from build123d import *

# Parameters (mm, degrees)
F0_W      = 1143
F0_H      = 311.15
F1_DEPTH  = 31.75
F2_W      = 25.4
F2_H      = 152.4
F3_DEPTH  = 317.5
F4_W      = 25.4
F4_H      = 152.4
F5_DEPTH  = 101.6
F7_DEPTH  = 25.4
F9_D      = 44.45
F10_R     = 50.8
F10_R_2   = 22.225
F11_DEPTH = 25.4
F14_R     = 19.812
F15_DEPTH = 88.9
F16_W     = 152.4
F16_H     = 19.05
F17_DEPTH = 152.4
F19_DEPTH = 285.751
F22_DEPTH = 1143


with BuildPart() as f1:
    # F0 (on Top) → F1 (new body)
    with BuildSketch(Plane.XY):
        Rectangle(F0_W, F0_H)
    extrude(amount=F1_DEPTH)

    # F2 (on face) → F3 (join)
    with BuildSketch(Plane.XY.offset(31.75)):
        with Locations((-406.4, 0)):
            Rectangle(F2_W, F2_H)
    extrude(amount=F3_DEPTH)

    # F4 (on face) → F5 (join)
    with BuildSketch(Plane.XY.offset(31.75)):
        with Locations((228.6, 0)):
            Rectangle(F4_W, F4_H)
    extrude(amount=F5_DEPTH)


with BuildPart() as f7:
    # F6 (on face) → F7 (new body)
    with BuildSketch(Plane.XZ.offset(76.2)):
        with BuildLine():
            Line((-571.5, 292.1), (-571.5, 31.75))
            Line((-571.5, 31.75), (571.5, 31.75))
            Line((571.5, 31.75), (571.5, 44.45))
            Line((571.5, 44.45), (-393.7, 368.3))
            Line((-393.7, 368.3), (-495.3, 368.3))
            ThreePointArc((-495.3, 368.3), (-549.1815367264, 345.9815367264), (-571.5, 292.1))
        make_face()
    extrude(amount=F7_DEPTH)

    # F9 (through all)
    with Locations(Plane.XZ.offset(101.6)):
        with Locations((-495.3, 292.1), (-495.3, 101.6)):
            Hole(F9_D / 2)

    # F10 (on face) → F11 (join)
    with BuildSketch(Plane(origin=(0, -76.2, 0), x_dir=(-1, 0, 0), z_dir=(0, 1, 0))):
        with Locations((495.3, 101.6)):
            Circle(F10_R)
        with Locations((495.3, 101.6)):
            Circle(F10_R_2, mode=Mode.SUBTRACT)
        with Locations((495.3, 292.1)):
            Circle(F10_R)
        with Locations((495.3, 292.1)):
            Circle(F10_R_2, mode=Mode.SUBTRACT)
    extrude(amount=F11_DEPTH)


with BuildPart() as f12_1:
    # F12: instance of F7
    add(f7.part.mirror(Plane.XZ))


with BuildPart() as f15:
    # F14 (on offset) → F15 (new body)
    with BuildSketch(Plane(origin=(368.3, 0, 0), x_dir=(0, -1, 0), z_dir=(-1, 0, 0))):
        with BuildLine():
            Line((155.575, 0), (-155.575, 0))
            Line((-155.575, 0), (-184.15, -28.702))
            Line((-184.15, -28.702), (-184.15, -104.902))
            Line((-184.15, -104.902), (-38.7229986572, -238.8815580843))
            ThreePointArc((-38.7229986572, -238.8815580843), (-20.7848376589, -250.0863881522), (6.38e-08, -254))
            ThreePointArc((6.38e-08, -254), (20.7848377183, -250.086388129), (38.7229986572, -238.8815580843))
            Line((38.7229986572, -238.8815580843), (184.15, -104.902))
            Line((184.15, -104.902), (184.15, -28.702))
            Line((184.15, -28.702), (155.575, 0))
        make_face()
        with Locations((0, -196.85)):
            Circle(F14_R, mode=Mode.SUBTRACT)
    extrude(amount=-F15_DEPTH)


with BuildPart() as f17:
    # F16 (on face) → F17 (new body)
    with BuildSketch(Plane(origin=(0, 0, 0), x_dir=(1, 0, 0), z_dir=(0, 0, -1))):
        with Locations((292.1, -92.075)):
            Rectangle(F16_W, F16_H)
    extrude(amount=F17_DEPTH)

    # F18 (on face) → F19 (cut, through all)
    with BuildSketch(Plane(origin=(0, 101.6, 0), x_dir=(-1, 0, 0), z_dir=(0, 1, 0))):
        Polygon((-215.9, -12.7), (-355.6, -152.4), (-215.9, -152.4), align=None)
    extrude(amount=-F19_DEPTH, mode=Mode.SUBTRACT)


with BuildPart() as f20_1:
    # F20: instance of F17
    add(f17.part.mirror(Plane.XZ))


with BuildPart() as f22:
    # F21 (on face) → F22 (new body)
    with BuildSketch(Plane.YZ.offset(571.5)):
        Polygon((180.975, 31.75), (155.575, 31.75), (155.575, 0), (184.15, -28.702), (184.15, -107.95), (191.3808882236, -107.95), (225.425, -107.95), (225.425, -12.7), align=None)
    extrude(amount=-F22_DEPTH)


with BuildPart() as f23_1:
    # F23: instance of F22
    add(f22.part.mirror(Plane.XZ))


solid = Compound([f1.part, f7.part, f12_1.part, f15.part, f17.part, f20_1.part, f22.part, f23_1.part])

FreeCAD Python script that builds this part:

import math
import FreeCAD as App
import Part
import Sketcher
from FreeCAD import Vector
Q = App.Units.Quantity


def add_polygon(sketch, points):
    """Adds a closed chain of lines whose ends are joined by coincident constraints."""
    first, n = sketch.GeometryCount, len(points)
    for a, b in zip(points, points[1:] + points[:1]):
        sketch.addGeometry(Part.LineSegment(App.Vector(*a, 0), App.Vector(*b, 0)), False)
    for i in range(n):
        sketch.addConstraint(Sketcher.Constraint("Coincident", first + i, 2, first + (i + 1) % n, 1))

doc = App.newDocument("Part")
body = doc.addObject("PartDesign::Body", "Body")

sketch1 = body.newObject("Sketcher::SketchObject", "Sketch")
sketch1.AttachmentSupport = (doc.getObject("XY_Plane"), [""])
sketch1.MapMode = "FlatFace"
add_polygon(sketch1, [(-572, 156), (-572, -156), (572, -156), (572, 156)])
sketch1.addConstraint(Sketcher.Constraint("Vertical", 0))
sketch1.addConstraint(Sketcher.Constraint("Horizontal", 1))
sketch1.addConstraint(Sketcher.Constraint("Vertical", 2))
sketch1.addConstraint(Sketcher.Constraint("Horizontal", 3))
sketch1.addConstraint(Sketcher.Constraint("Symmetric", 0, 2, 2, 2, -1, 1))
sketch1.addConstraint(Sketcher.Constraint("DistanceX", 1, 1, 1, 2, Q("45 in")))
sketch1.addConstraint(Sketcher.Constraint("DistanceY", 0, 2, 0, 1, Q("12.25 in")))
pad1 = body.newObject("PartDesign::Pad", "Pad")
pad1.Profile = sketch1
pad1.Length = Q("1.25 in")

sketch2 = body.newObject("Sketcher::SketchObject", "Sketch001")
sketch2.AttachmentSupport = (doc.getObject("XY_Plane"), [""])
sketch2.MapMode = "FlatFace"
sketch2.AttachmentOffset = App.Placement(Vector(0, 0, 1.25 * 25.4), App.Rotation())
add_polygon(sketch2, [(-419, 76), (-419, -76), (-394, -76), (-394, 76)])
sketch2.addConstraint(Sketcher.Constraint("Vertical", 0))
sketch2.addConstraint(Sketcher.Constraint("Horizontal", 1))
sketch2.addConstraint(Sketcher.Constraint("Vertical", 2))
sketch2.addConstraint(Sketcher.Constraint("Horizontal", 3))
sketch2.addConstraint(Sketcher.Constraint("DistanceX", 1, 1, 1, 2, Q("1 in")))
sketch2.addConstraint(Sketcher.Constraint("DistanceY", 0, 2, 0, 1, Q("6 in")))
sketch2.addConstraint(Sketcher.Constraint("DistanceY", 0, 2, -1, 1, Q("3 in")))
sketch2.addConstraint(Sketcher.Constraint("DistanceX", 0, 2, -1, 1, Q("16.5 in")))
pad2 = body.newObject("PartDesign::Pad", "Pad001")
pad2.Profile = sketch2
pad2.Length = Q("12.5 in")

sketch3 = body.newObject("Sketcher::SketchObject", "Sketch002")
sketch3.AttachmentSupport = (doc.getObject("XY_Plane"), [""])
sketch3.MapMode = "FlatFace"
sketch3.AttachmentOffset = App.Placement(Vector(0, 0, 1.25 * 25.4), App.Rotation())
add_polygon(sketch3, [(216, 76), (216, -76), (241, -76), (241, 76)])
sketch3.addConstraint(Sketcher.Constraint("Vertical", 0))
sketch3.addConstraint(Sketcher.Constraint("Horizontal", 1))
sketch3.addConstraint(Sketcher.Constraint("Vertical", 2))
sketch3.addConstraint(Sketcher.Constraint("Horizontal", 3))
sketch3.addConstraint(Sketcher.Constraint("DistanceX", 1, 1, 1, 2, Q("1 in")))
sketch3.addConstraint(Sketcher.Constraint("DistanceY", 0, 2, 0, 1, Q("6 in")))
sketch3.addConstraint(Sketcher.Constraint("DistanceY", 0, 2, -1, 1, Q("3 in")))
sketch3.addConstraint(Sketcher.Constraint("DistanceX", -1, 1, 0, 2, Q("8.5 in")))
pad3 = body.newObject("PartDesign::Pad", "Pad002")
pad3.Profile = sketch3
pad3.Length = Q("4 in")
body2 = doc.addObject("PartDesign::Body", "Body001")

sketch4 = body2.newObject("Sketcher::SketchObject", "Sketch003")
sketch4.AttachmentSupport = (doc.getObject("XZ_Plane001"), [""])
sketch4.MapMode = "FlatFace"
sketch4.AttachmentOffset = App.Placement(Vector(0, 0, 3 * 25.4), App.Rotation())
sketch4.addGeometry(Part.LineSegment(Vector(-572, 292, 0), Vector(-572, 32, 0)), False)
sketch4.addGeometry(Part.LineSegment(Vector(-572, 32, 0), Vector(572, 32, 0)), False)
sketch4.addGeometry(Part.LineSegment(Vector(572, 32, 0), Vector(572, 44, 0)), False)
sketch4.addGeometry(Part.LineSegment(Vector(572, 44, 0), Vector(-394, 368, 0)), False)
sketch4.addGeometry(Part.LineSegment(Vector(-394, 368, 0), Vector(-495, 368, 0)), False)
sketch4.addGeometry(Part.ArcOfCircle(Part.Circle(Vector(-495, 292, 0), Vector(0, 0, 1), 76), math.radians(90), math.radians(180)), False)
sketch4.addConstraint(Sketcher.Constraint("Coincident", 0, 2, 1, 1))
sketch4.addConstraint(Sketcher.Constraint("Coincident", 1, 2, 2, 1))
sketch4.addConstraint(Sketcher.Constraint("Coincident", 2, 2, 3, 1))
sketch4.addConstraint(Sketcher.Constraint("Coincident", 3, 2, 4, 1))
sketch4.addConstraint(Sketcher.Constraint("Tangent", 4, 2, 5, 1))
sketch4.addConstraint(Sketcher.Constraint("Tangent", 5, 2, 0, 1))
sketch4.addConstraint(Sketcher.Constraint("Vertical", 0))
sketch4.addConstraint(Sketcher.Constraint("Horizontal", 1))
sketch4.addConstraint(Sketcher.Constraint("Vertical", 2))
sketch4.addConstraint(Sketcher.Constraint("Horizontal", 4))
sketch4.addConstraint(Sketcher.Constraint("Radius", 5, Q("3 in")))
sketch4.addConstraint(Sketcher.Constraint("DistanceX", 1, 1, 1, 2, Q("45 in")))
sketch4.addConstraint(Sketcher.Constraint("DistanceX", 4, 2, 4, 1, Q("4 in")))
sketch4.addConstraint(Sketcher.Constraint("DistanceY", 2, 1, 2, 2, Q("0.5 in")))
sketch4.addConstraint(Sketcher.Constraint("DistanceY", 0, 2, 0, 1, Q("10.25 in")))
sketch4.addConstraint(Sketcher.Constraint("DistanceX", 5, 3, -1, 1, Q("19.5 in")))
sketch4.addConstraint(Sketcher.Constraint("DistanceY", -1, 1, 5, 3, Q("11.5 in")))
pad4 = body2.newObject("PartDesign::Pad", "Pad003")
pad4.Profile = sketch4
pad4.Length = Q("1 in")

sketch5 = body2.newObject("Sketcher::SketchObject", "Sketch004")
sketch5.AttachmentSupport = (doc.getObject("XZ_Plane001"), [""])
sketch5.MapMode = "FlatFace"
sketch5.AttachmentOffset = App.Placement(Vector(0, 0, 4 * 25.4), App.Rotation())
sketch5.addGeometry(Part.Circle(Vector(-495, 292, 0), Vector(0, 0, 1), 22), False)
sketch5.addGeometry(Part.Circle(Vector(-495, 102, 0), Vector(0, 0, 1), 22), False)
sketch5.addConstraint(Sketcher.Constraint("Equal", 0, 1))
sketch5.addConstraint(Sketcher.Constraint("Vertical", 0, 3, 1, 3))
sketch5.addConstraint(Sketcher.Constraint("Diameter", 0, Q("1.75 in")))
sketch5.addConstraint(Sketcher.Constraint("DistanceY", -1, 1, 1, 3, Q("4 in")))
sketch5.addConstraint(Sketcher.Constraint("DistanceX", 0, 3, -1, 1, Q("19.5 in")))
sketch5.addConstraint(Sketcher.Constraint("DistanceY", -1, 1, 0, 3, Q("11.5 in")))
doc.recompute()
hole = body2.newObject("PartDesign::Hole", "Hole")
hole.Profile = sketch5
hole.ThreadType = "None"
hole.Diameter = Q("1.75 in")
hole.DepthType = "ThroughAll"

sketch6 = body2.newObject("Sketcher::SketchObject", "Sketch005")
sketch6.AttachmentSupport = (doc.getObject("XZ_Plane001"), [""])
sketch6.MapMode = "FlatFace"
sketch6.AttachmentOffset = App.Placement(Vector(0, 0, 3 * 25.4), App.Rotation())
sketch6.addGeometry(Part.Circle(Vector(-495, 102, 0), Vector(0, 0, 1), 51), False)
sketch6.addGeometry(Part.Circle(Vector(-495, 102, 0), Vector(0, 0, 1), 22), False)
sketch6.addGeometry(Part.Circle(Vector(-495, 292, 0), Vector(0, 0, 1), 51), False)
sketch6.addGeometry(Part.Circle(Vector(-495, 292, 0), Vector(0, 0, 1), 22), False)
sketch6.addConstraint(Sketcher.Constraint("Coincident", 1, 3, 0, 3))
sketch6.addConstraint(Sketcher.Constraint("Coincident", 3, 3, 2, 3))
sketch6.addConstraint(Sketcher.Constraint("Equal", 0, 2))
sketch6.addConstraint(Sketcher.Constraint("Equal", 1, 3))
sketch6.addConstraint(Sketcher.Constraint("Vertical", 1, 3, 2, 3))
sketch6.addConstraint(Sketcher.Constraint("Diameter", 0, Q("4 in")))
sketch6.addConstraint(Sketcher.Constraint("Diameter", 1, Q("1.75 in")))
sketch6.addConstraint(Sketcher.Constraint("DistanceY", -1, 1, 0, 3, Q("4 in")))
sketch6.addConstraint(Sketcher.Constraint("DistanceX", 0, 3, -1, 1, Q("19.5 in")))
sketch6.addConstraint(Sketcher.Constraint("DistanceY", -1, 1, 2, 3, Q("11.5 in")))
pad5 = body2.newObject("PartDesign::Pad", "Pad004")
pad5.Profile = sketch6
pad5.Length = Q("1 in")
pad5.Reversed = True
body3 = doc.addObject("PartDesign::Body", "Body002")
doc.recompute()

mirroring = doc.addObject("Part::Mirroring", "Mirroring")
mirroring.Source = body2
mirroring.Base = Vector(0, 0, 0)
mirroring.Normal = Vector(0, -1, 0)
body3.BaseFeature = mirroring
doc.recompute()
body4 = doc.addObject("PartDesign::Body", "Body003")

sketch7 = body4.newObject("Sketcher::SketchObject", "Sketch006")
sketch7.AttachmentSupport = (doc.getObject("YZ_Plane003"), [""])
sketch7.MapMode = "FlatFace"
sketch7.AttachmentOffset = App.Placement(Vector(0, 0, 14.5 * 25.4), App.Rotation())
sketch7.addGeometry(Part.LineSegment(Vector(-156, 0, 0), Vector(156, 0, 0)), False)
sketch7.addGeometry(Part.LineSegment(Vector(156, 0, 0), Vector(184, -29, 0)), False)
sketch7.addGeometry(Part.LineSegment(Vector(184, -29, 0), Vector(184, -105, 0)), False)
sketch7.addGeometry(Part.LineSegment(Vector(184, -105, 0), Vector(39, -239, 0)), False)
sketch7.addGeometry(Part.ArcOfCircle(Part.Circle(Vector(0, -197, 0), Vector(0, 0, 1), 57), math.radians(-90), math.radians(-47)), False)
sketch7.addGeometry(Part.ArcOfCircle(Part.Circle(Vector(0, -197, 0), Vector(0, 0, 1), 57), math.radians(-133), math.radians(-90)), False)
sketch7.addGeometry(Part.LineSegment(Vector(-39, -239, 0), Vector(-184, -105, 0)), False)
sketch7.addGeometry(Part.LineSegment(Vector(-184, -105, 0), Vector(-184, -29, 0)), False)
sketch7.addGeometry(Part.LineSegment(Vector(-184, -29, 0), Vector(-156, 0, 0)), False)
sketch7.addGeometry(Part.Circle(Vector(0, -197, 0), Vector(0, 0, 1), 20), False)
sketch7.addConstraint(Sketcher.Constraint("Coincident", 0, 2, 1, 1))
sketch7.addConstraint(Sketcher.Constraint("Coincident", 1, 2, 2, 1))
sketch7.addConstraint(Sketcher.Constraint("Coincident", 2, 2, 3, 1))
sketch7.addConstraint(Sketcher.Constraint("Tangent", 3, 2, 4, 2))
sketch7.addConstraint(Sketcher.Constraint("Tangent", 4, 1, 5, 2))
sketch7.addConstraint(Sketcher.Constraint("Tangent", 5, 1, 6, 1))
sketch7.addConstraint(Sketcher.Constraint("Coincident", 6, 2, 7, 1))
sketch7.addConstraint(Sketcher.Constraint("Coincident", 7, 2, 8, 1))
sketch7.addConstraint(Sketcher.Constraint("Coincident", 8, 2, 0, 1))
sketch7.addConstraint(Sketcher.Constraint("Horizontal", 0))
sketch7.addConstraint(Sketcher.Constraint("Vertical", 2))
sketch7.addConstraint(Sketcher.Constraint("Vertical", 7))
sketch7.addConstraint(Sketcher.Constraint("Coincident", 9, 3, 4, 3))
sketch7.addConstraint(Sketcher.Constraint("Equal", 4, 5))
sketch7.addConstraint(Sketcher.Constraint("Symmetric", 0, 2, 8, 2, -1, 1))
sketch7.addConstraint(Sketcher.Constraint("Symmetric", 3, 2, 5, 1, -2))
sketch7.addConstraint(Sketcher.Constraint("Symmetric", 1, 2, 7, 2, -2))
sketch7.addConstraint(Sketcher.Constraint("PointOnObject", 4, 1, -2))
sketch7.addConstraint(Sketcher.Constraint("Diameter", 9, Q("1.56 in")))
sketch7.addConstraint(Sketcher.Constraint("DistanceY", 2, 2, 2, 1, Q("3 in")))
sketch7.addConstraint(Sketcher.Constraint("Radius", 4, Q("2.25 in")))
sketch7.addConstraint(Sketcher.Constraint("DistanceY", 4, 1, -1, 1, Q("10 in")))
sketch7.addConstraint(Sketcher.Constraint("DistanceX", 0, 1, 0, 2, Q("12.25 in")))
sketch7.addConstraint(Sketcher.Constraint("DistanceX", -1, 1, 1, 2, Q("7.25 in")))
sketch7.addConstraint(Sketcher.Constraint("DistanceY", 1, 2, -1, 1, Q("1.13 in")))
pad6 = body4.newObject("PartDesign::Pad", "Pad005")
pad6.Profile = sketch7
pad6.Length = Q("3.5 in")
body5 = doc.addObject("PartDesign::Body", "Body004")

sketch8 = body5.newObject("Sketcher::SketchObject", "Sketch007")
sketch8.AttachmentSupport = (doc.getObject("XY_Plane004"), [""])
sketch8.MapMode = "FlatFace"
add_polygon(sketch8, [(216, 83), (216, 102), (368, 102), (368, 83)])
sketch8.addConstraint(Sketcher.Constraint("Vertical", 0))
sketch8.addConstraint(Sketcher.Constraint("Horizontal", 1))
sketch8.addConstraint(Sketcher.Constraint("Vertical", 2))
sketch8.addConstraint(Sketcher.Constraint("Horizontal", 3))
sketch8.addConstraint(Sketcher.Constraint("DistanceX", 1, 1, 1, 2, Q("6 in")))
sketch8.addConstraint(Sketcher.Constraint("DistanceY", -1, 1, 0, 2, Q("4 in")))
sketch8.addConstraint(Sketcher.Constraint("DistanceY", 0, 1, 0, 2, Q("0.75 in")))
sketch8.addConstraint(Sketcher.Constraint("DistanceX", -1, 1, 0, 2, Q("8.5 in")))
pad7 = body5.newObject("PartDesign::Pad", "Pad006")
pad7.Profile = sketch8
pad7.Length = Q("6 in")
pad7.Reversed = True

sketch9 = body5.newObject("Sketcher::SketchObject", "Sketch008")
sketch9.AttachmentSupport = (doc.getObject("XZ_Plane004"), [""])
sketch9.MapMode = "FlatFace"
sketch9.AttachmentOffset = App.Placement(Vector(0, 0, -4 * 25.4), App.Rotation())
add_polygon(sketch9, [(216, -13), (356, -152), (216, -152)])
sketch9.addConstraint(Sketcher.Constraint("Horizontal", 1))
sketch9.addConstraint(Sketcher.Constraint("Vertical", 2))
sketch9.addConstraint(Sketcher.Constraint("Equal", 1, 2))
sketch9.addConstraint(Sketcher.Constraint("DistanceX", 1, 2, 1, 1, Q("5.5 in")))
sketch9.addConstraint(Sketcher.Constraint("DistanceX", -1, 1, 0, 2, Q("14 in")))
sketch9.addConstraint(Sketcher.Constraint("DistanceY", 0, 2, -1, 1, Q("6 in")))
pocket1 = body5.newObject("PartDesign::Pocket", "Pocket")
pocket1.Profile = sketch9
pocket1.Type = "ThroughAll"
pocket1.Reversed = True
body6 = doc.addObject("PartDesign::Body", "Body005")
doc.recompute()

mirroring2 = doc.addObject("Part::Mirroring", "Mirroring001")
mirroring2.Source = body5
mirroring2.Base = Vector(0, 0, 0)
mirroring2.Normal = Vector(0, -1, 0)
body6.BaseFeature = mirroring2
doc.recompute()
body7 = doc.addObject("PartDesign::Body", "Body006")

sketch10 = body7.newObject("Sketcher::SketchObject", "Sketch009")
sketch10.AttachmentSupport = (doc.getObject("YZ_Plane006"), [""])
sketch10.MapMode = "FlatFace"
sketch10.AttachmentOffset = App.Placement(Vector(0, 0, 22.5 * 25.4), App.Rotation())
add_polygon(sketch10, [(181, 32), (156, 32), (156, 0), (184, -29), (184, -108), (225, -108), (225, -13)])
sketch10.addConstraint(Sketcher.Constraint("Horizontal", 0))
sketch10.addConstraint(Sketcher.Constraint("Vertical", 1))
sketch10.addConstraint(Sketcher.Constraint("Vertical", 3))
sketch10.addConstraint(Sketcher.Constraint("Horizontal", 4))
sketch10.addConstraint(Sketcher.Constraint("Vertical", 5))
sketch10.addConstraint(Sketcher.Constraint("PointOnObject", 1, 2, -1))
sketch10.addConstraint(Sketcher.Constraint("DistanceX", 0, 2, 0, 1, Q("1 in")))
sketch10.addConstraint(Sketcher.Constraint("Angle", 6, Q("135 deg")))
sketch10.addConstraint(Sketcher.Constraint("DistanceY", 1, 2, 1, 1, Q("1.25 in")))
sketch10.addConstraint(Sketcher.Constraint("DistanceY", 3, 2, 3, 1, Q("3.12 in")))
sketch10.addConstraint(Sketcher.Constraint("DistanceY", 5, 1, 5, 2, Q("3.75 in")))
sketch10.addConstraint(Sketcher.Constraint("DistanceY", 5, 2, -1, 1, Q("0.5 in")))
sketch10.addConstraint(Sketcher.Constraint("DistanceX", 4, 1, 4, 2, Q("1.625 in")))
sketch10.addConstraint(Sketcher.Constraint("DistanceX", -1, 1, 2, 2, Q("7.25 in")))
pad8 = body7.newObject("PartDesign::Pad", "Pad007")
pad8.Profile = sketch10
pad8.Length = Q("45 in")
pad8.Reversed = True
body8 = doc.addObject("PartDesign::Body", "Body007")
doc.recompute()

mirroring3 = doc.addObject("Part::Mirroring", "Mirroring002")
mirroring3.Source = body7
mirroring3.Base = Vector(0, 0, 0)
mirroring3.Normal = Vector(0, -1, 0)
body8.BaseFeature = mirroring3
doc.recompute()
mirroring.Visibility = False
mirroring2.Visibility = False
mirroring3.Visibility = False

doc.recompute()
